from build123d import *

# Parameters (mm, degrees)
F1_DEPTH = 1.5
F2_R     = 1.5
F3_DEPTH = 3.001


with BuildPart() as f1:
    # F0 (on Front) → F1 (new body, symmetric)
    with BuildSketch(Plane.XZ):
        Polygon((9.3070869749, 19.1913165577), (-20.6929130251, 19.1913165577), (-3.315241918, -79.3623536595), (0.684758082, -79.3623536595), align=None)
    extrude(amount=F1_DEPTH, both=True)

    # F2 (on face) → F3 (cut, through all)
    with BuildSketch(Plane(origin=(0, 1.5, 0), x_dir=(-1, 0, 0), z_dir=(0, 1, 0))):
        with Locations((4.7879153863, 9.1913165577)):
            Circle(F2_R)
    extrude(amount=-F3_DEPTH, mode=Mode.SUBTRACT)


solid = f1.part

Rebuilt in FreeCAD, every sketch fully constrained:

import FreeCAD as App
import Part
import Sketcher
from FreeCAD import Vector
Q = App.Units.Quantity


def add_polygon(sketch, points):
    """Adds a closed chain of lines whose ends are joined by coincident constraints."""
    first, n = sketch.GeometryCount, len(points)
    for a, b in zip(points, points[1:] + points[:1]):
        sketch.addGeometry(Part.LineSegment(App.Vector(*a, 0), App.Vector(*b, 0)), False)
    for i in range(n):
        sketch.addConstraint(Sketcher.Constraint("Coincident", first + i, 2, first + (i + 1) % n, 1))

doc = App.newDocument("Part")
body = doc.addObject("PartDesign::Body", "Body")

sketch1 = body.newObject("Sketcher::SketchObject", "Sketch")
sketch1.AttachmentSupport = (doc.getObject("XZ_Plane"), [""])
sketch1.MapMode = "FlatFace"
add_polygon(sketch1, [(9.3, 19.2), (-20.7, 19.2), (-3.3, -79.4), (0.7, -79.4)])
sketch1.addConstraint(Sketcher.Constraint("Horizontal", 0))
sketch1.addConstraint(Sketcher.Constraint("Horizontal", 2))
sketch1.addConstraint(Sketcher.Constraint("DistanceX", 0, 2, 0, 1, 30.0))
sketch1.addConstraint(Sketcher.Constraint("DistanceX", 2, 1, 2, 2, 4.0))
sketch1.addConstraint(Sketcher.Constraint("Angle", 1, Q("-80 deg")))
sketch1.addConstraint(Sketcher.Constraint("Angle", 3, Q("85 deg")))
sketch1.addConstraint(Sketcher.Constraint("DistanceX", 1, 2, -1, 1, 3.315242))
sketch1.addConstraint(Sketcher.Constraint("DistanceY", -1, 1, 0, 2, 19.191317))
pad1 = body.newObject("PartDesign::Pad", "Pad")
pad1.Profile = sketch1
pad1.Length = 3
pad1.Midplane = True

sketch2 = body.newObject("Sketcher::SketchObject", "Sketch001")
sketch2.AttachmentSupport = (doc.getObject("XZ_Plane"), [""])
sketch2.MapMode = "FlatFace"
sketch2.AttachmentOffset = App.Placement(Vector(0, 0, -1.5), App.Rotation())
sketch2.addGeometry(Part.Circle(Vector(-4.8, 9.2, 0), Vector(0, 0, 1), 1.5), False)
sketch2.addConstraint(Sketcher.Constraint("Diameter", 0, 3.0))
sketch2.addConstraint(Sketcher.Constraint("DistanceX", 0, 3, -1, 1, 4.787915))
sketch2.addConstraint(Sketcher.Constraint("DistanceY", -1, 1, 0, 3, 9.191317))
pocket1 = body.newObject("PartDesign::Pocket", "Pocket")
pocket1.Profile = sketch2
pocket1.Type = "ThroughAll"
pocket1.Reversed = True

doc.recompute()
